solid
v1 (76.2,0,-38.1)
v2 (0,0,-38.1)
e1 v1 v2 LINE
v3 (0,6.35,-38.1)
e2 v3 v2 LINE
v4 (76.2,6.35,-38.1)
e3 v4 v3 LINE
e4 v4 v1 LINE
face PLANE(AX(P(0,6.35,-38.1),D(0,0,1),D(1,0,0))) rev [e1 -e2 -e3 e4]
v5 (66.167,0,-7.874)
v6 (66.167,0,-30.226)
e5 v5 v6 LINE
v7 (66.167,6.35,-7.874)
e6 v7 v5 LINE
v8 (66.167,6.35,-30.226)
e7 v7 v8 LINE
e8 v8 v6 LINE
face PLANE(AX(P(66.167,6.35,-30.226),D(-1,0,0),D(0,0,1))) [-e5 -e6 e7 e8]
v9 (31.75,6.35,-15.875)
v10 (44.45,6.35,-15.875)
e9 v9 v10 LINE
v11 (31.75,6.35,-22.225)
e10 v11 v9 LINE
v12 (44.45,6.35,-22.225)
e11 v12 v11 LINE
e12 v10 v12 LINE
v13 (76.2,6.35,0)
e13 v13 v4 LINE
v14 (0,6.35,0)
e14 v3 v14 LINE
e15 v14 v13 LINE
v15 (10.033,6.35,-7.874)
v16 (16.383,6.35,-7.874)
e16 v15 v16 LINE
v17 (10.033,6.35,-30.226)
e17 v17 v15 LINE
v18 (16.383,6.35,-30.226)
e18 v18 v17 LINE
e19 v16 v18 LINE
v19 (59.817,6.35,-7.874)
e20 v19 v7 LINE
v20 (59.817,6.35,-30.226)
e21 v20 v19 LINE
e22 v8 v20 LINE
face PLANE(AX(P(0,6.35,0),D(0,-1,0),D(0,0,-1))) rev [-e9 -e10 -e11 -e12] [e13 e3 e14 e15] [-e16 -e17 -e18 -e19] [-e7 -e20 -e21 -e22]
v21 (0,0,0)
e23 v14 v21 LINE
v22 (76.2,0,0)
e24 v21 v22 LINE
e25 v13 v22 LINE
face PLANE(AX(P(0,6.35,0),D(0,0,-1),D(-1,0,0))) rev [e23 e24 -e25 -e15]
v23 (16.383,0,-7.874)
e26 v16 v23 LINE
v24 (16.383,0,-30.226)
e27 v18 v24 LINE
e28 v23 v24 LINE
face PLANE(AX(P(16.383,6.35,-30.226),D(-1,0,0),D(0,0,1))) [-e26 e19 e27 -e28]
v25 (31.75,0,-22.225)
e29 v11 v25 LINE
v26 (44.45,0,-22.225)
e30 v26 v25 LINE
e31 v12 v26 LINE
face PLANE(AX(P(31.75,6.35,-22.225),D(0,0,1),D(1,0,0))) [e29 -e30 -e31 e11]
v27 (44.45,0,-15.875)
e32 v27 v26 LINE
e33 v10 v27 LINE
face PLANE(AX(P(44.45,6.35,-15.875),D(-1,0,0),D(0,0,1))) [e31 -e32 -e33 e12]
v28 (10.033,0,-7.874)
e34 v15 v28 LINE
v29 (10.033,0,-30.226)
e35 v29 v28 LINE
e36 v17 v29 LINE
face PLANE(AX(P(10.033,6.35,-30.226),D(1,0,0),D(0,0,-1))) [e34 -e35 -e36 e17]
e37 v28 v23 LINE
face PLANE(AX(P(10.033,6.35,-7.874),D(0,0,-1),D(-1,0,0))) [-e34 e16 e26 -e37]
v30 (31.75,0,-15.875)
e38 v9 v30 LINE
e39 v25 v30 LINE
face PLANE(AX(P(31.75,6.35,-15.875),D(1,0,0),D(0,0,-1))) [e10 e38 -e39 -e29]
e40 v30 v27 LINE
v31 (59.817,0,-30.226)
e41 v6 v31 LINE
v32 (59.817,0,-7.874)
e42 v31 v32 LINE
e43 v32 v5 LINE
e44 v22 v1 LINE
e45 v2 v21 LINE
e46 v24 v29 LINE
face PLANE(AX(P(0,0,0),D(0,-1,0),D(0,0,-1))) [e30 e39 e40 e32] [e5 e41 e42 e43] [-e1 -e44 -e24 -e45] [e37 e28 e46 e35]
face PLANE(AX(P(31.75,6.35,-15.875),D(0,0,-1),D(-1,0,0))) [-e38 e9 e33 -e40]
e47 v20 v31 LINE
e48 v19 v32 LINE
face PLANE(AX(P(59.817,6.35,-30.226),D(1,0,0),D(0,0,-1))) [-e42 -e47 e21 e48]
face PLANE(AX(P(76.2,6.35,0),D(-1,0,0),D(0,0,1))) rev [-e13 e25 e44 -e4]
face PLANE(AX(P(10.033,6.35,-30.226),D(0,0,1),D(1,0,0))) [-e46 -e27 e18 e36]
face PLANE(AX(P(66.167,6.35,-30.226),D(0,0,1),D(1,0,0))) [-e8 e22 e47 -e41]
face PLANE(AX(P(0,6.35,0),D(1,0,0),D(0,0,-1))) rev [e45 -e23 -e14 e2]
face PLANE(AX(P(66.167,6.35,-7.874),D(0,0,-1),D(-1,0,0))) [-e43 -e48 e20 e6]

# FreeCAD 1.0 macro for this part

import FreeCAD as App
import Part
import Sketcher

V = App.Vector
Q = App.Units.Quantity

doc = App.newDocument("Part")
params = doc.addObject("Spreadsheet::Sheet", "Params")
for row, (alias, value) in enumerate([
    ("sketch1_width", "3 in"),
    ("sketch1_width2", "0.5 in"),
    ("sketch1_height", "1.5 in"),
    ("sketch1_width3", "0.25 in"),
    ("sketch1_height2", "0.88 in"),
    ("pad1_length", "0.25 in"),
], start=1):
    params.set(f"A{row}", alias)
    params.set(f"B{row}", "=" + value)
    params.setAlias(f"B{row}", alias)

body = doc.addObject("PartDesign::Body", "Body")

# Sketch on XZ plane
sketch1 = body.newObject("Sketcher::SketchObject", "Sketch")
sketch1.AttachmentSupport = (doc.getObject("XZ_Plane"), [""])
sketch1.MapMode = "FlatFace"
sketch1.addGeometry([
    Part.LineSegment(V(0, -38, 0), V(0, 0, 0)),  # 0
    Part.LineSegment(V(0, 0, 0), V(76, 0, 0)),  # 1
    Part.LineSegment(V(76, 0, 0), V(76, -38, 0)),  # 2
    Part.LineSegment(V(76, -38, 0), V(0, -38, 0)),  # 3
    Part.LineSegment(V(16, -8, 0), V(10, -8, 0)),  # 4
    Part.LineSegment(V(10, -8, 0), V(10, -30, 0)),  # 5
    Part.LineSegment(V(10, -30, 0), V(16, -30, 0)),  # 6
    Part.LineSegment(V(16, -30, 0), V(16, -8, 0)),  # 7
    Part.LineSegment(V(44, -16, 0), V(32, -16, 0)),  # 8
    Part.LineSegment(V(32, -16, 0), V(32, -22, 0)),  # 9
    Part.LineSegment(V(32, -22, 0), V(44, -22, 0)),  # 10
    Part.LineSegment(V(44, -22, 0), V(44, -16, 0)),  # 11
    Part.LineSegment(V(66, -8, 0), V(60, -8, 0)),  # 12
    Part.LineSegment(V(60, -8, 0), V(60, -30, 0)),  # 13
    Part.LineSegment(V(60, -30, 0), V(66, -30, 0)),  # 14
    Part.LineSegment(V(66, -30, 0), V(66, -8, 0)),  # 15
], False)
sketch1.addConstraint([
    Sketcher.Constraint("Coincident", 0, 2, 1, 1),
    Sketcher.Constraint("Coincident", 1, 2, 2, 1),
    Sketcher.Constraint("Coincident", 2, 2, 3, 1),
    Sketcher.Constraint("Coincident", 3, 2, 0, 1),
    Sketcher.Constraint("Coincident", 4, 2, 5, 1),
    Sketcher.Constraint("Coincident", 5, 2, 6, 1),
    Sketcher.Constraint("Coincident", 6, 2, 7, 1),
    Sketcher.Constraint("Coincident", 7, 2, 4, 1),
    Sketcher.Constraint("Coincident", 8, 2, 9, 1),
    Sketcher.Constraint("Coincident", 9, 2, 10, 1),
    Sketcher.Constraint("Coincident", 10, 2, 11, 1),
    Sketcher.Constraint("Coincident", 11, 2, 8, 1),
    Sketcher.Constraint("Coincident", 12, 2, 13, 1),
    Sketcher.Constraint("Coincident", 13, 2, 14, 1),
    Sketcher.Constraint("Coincident", 14, 2, 15, 1),
    Sketcher.Constraint("Coincident", 15, 2, 12, 1),
    Sketcher.Constraint("Vertical", 0),
    Sketcher.Constraint("Horizontal", 1),
    Sketcher.Constraint("Vertical", 2),
    Sketcher.Constraint("Horizontal", 3),
    Sketcher.Constraint("Horizontal", 4),
    Sketcher.Constraint("Vertical", 5),
    Sketcher.Constraint("Horizontal", 6),
    Sketcher.Constraint("Vertical", 7),
    Sketcher.Constraint("Horizontal", 8),
    Sketcher.Constraint("Vertical", 9),
    Sketcher.Constraint("Horizontal", 10),
    Sketcher.Constraint("Vertical", 11),
    Sketcher.Constraint("Horizontal", 12),
    Sketcher.Constraint("Vertical", 13),
    Sketcher.Constraint("Horizontal", 14),
    Sketcher.Constraint("Vertical", 15),
    Sketcher.Constraint("Coincident", 0, 2, -1, 1),
    Sketcher.Constraint("Horizontal", 7, 2, 12, 2),
    Sketcher.Constraint("Horizontal", 6, 2, 13, 2),
    Sketcher.Constraint("Equal", 6, 12),
    Sketcher.Constraint("Equal", 14, 9),
    Sketcher.Constraint("DistanceX", 1, 1, 1, 2, Q("3 in")),
    Sketcher.Constraint("DistanceX", 8, 2, 8, 1, Q("0.5 in")),
    Sketcher.Constraint("DistanceY", 0, 1, 0, 2, Q("1.5 in")),
    Sketcher.Constraint("DistanceX", 4, 2, 4, 1, Q("0.25 in")),
    Sketcher.Constraint("DistanceY", 5, 2, 5, 1, Q("0.88 in")),
    Sketcher.Constraint("DistanceY", 4, 2, -1, 1, Q("0.31 in")),
    Sketcher.Constraint("DistanceX", -1, 1, 8, 2, Q("1.25 in")),
    Sketcher.Constraint("DistanceX", -1, 1, 4, 2, Q("0.395 in")),
    Sketcher.Constraint("DistanceY", 8, 2, -1, 1, Q("0.625 in")),
    Sketcher.Constraint("DistanceX", -1, 1, 12, 2, Q("2.355 in")),
])
sketch1.setExpression("Constraints[37]", "Params.sketch1_width")
sketch1.setExpression("Constraints[38]", "Params.sketch1_width2")
sketch1.setExpression("Constraints[39]", "Params.sketch1_height")
sketch1.setExpression("Constraints[40]", "Params.sketch1_width3")
sketch1.setExpression("Constraints[41]", "Params.sketch1_height2")
pad1 = body.newObject("PartDesign::Pad", "Pad")
pad1.Profile = sketch1
pad1.setExpression("Length", "Params.pad1_length")
pad1.Reversed = True

doc.recompute()
